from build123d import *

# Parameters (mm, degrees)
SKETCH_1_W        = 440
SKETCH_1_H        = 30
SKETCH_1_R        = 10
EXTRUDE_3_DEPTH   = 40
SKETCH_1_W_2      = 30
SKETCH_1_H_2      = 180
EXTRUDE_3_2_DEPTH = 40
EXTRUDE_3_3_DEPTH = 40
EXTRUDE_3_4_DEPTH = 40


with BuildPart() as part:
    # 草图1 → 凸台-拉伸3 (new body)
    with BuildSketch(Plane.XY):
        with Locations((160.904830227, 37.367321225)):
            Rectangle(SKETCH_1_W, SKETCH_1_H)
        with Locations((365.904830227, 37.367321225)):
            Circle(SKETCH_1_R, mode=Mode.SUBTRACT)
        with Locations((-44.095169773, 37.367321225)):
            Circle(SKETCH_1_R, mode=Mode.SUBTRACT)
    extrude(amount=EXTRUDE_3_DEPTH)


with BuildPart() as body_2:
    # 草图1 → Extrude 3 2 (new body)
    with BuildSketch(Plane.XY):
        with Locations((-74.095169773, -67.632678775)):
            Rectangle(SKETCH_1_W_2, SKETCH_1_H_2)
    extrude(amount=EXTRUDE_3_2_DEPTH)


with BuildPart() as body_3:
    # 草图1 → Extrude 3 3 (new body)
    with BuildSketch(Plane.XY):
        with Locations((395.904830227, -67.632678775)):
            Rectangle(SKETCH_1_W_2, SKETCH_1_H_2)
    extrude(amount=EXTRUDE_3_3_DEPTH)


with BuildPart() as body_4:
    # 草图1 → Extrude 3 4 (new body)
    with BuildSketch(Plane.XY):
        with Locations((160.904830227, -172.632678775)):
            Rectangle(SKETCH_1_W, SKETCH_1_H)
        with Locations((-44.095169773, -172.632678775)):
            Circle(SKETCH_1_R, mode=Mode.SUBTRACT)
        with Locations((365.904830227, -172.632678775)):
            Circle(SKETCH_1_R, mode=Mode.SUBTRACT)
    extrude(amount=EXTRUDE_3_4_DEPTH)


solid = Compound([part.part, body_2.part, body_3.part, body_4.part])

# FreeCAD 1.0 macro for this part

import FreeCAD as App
import Part
import Sketcher
from FreeCAD import Vector

doc = App.newDocument("Part")
params = doc.addObject("Spreadsheet::Sheet", "Params")
for row, (alias, value) in enumerate([
    ("sketch1_diameter", "20 mm"),
    ("sketch1_width", "440 mm"),
    ("sketch1_height", "30 mm"),
    ("pad1_length", "40 mm"),
    ("sketch2_width", "30 mm"),
    ("sketch2_height", "180 mm"),
    ("pad2_length", "40 mm"),
    ("sketch3_width", "30 mm"),
    ("sketch3_height", "180 mm"),
    ("pad3_length", "40 mm"),
    ("sketch4_diameter", "20 mm"),
    ("sketch4_width", "440 mm"),
    ("sketch4_height", "30 mm"),
    ("pad4_length", "40 mm"),
], start=1):
    params.set(f"A{row}", alias)
    params.set(f"B{row}", "=" + value)
    params.setAlias(f"B{row}", alias)

body = doc.addObject("PartDesign::Body", "Body")

sketch1 = body.newObject("Sketcher::SketchObject", "Sketch")
sketch1.AttachmentSupport = (doc.getObject("XY_Plane"), [""])
sketch1.MapMode = "FlatFace"
sketch1.addGeometry([
    Part.LineSegment(Vector(-59.09517, 52.367321, 0), Vector(-59.09517, 22.367321, 0)),
    Part.LineSegment(Vector(-59.09517, 22.367321, 0), Vector(380.90483, 22.367321, 0)),
    Part.LineSegment(Vector(380.90483, 22.367321, 0), Vector(380.90483, 52.367321, 0)),
    Part.LineSegment(Vector(380.90483, 52.367321, 0), Vector(-59.09517, 52.367321, 0)),
    Part.Circle(Vector(-44.09517, 37.367321, 0), Vector(0, 0, 1), 10),
    Part.Circle(Vector(365.90483, 37.367321, 0), Vector(0, 0, 1), 10),
], False)
sketch1.addConstraint([
    Sketcher.Constraint("Coincident", 0, 2, 1, 1),
    Sketcher.Constraint("Coincident", 1, 2, 2, 1),
    Sketcher.Constraint("Coincident", 2, 2, 3, 1),
    Sketcher.Constraint("Coincident", 3, 2, 0, 1),
    Sketcher.Constraint("Vertical", 0),
    Sketcher.Constraint("Horizontal", 1),
    Sketcher.Constraint("Vertical", 2),
    Sketcher.Constraint("Horizontal", 3),
    Sketcher.Constraint("Equal", 4, 5),
    Sketcher.Constraint("Horizontal", 4, 3, 5, 3),
    Sketcher.Constraint("Diameter", 4, 20.0),
    Sketcher.Constraint("DistanceX", 1, 1, 1, 2, 440.0),
    Sketcher.Constraint("DistanceY", 0, 2, 0, 1, 30.0),
    Sketcher.Constraint("DistanceX", 4, 3, 5, 3, 410.0),
    Sketcher.Constraint("DistanceX", 0, 2, 4, 3, 15.0),
    Sketcher.Constraint("DistanceY", 0, 2, 4, 3, 15.0),
    Sketcher.Constraint("DistanceX", 4, 3, -1, 1, 44.09517),
    Sketcher.Constraint("DistanceY", -1, 1, 4, 3, 37.367321),
])
sketch1.setExpression("Constraints[10]", "Params.sketch1_diameter")
sketch1.setExpression("Constraints[11]", "Params.sketch1_width")
sketch1.setExpression("Constraints[12]", "Params.sketch1_height")
pad1 = body.newObject("PartDesign::Pad", "Pad")
pad1.Profile = sketch1
pad1.setExpression("Length", "Params.pad1_length")
body2 = doc.addObject("PartDesign::Body", "Body001")

sketch2 = body2.newObject("Sketcher::SketchObject", "Sketch001")
sketch2.AttachmentSupport = (doc.getObject("XY_Plane001"), [""])
sketch2.MapMode = "FlatFace"
sketch2.addGeometry([
    Part.LineSegment(Vector(-89.09517, 22.367321, 0), Vector(-89.09517, -157.632679, 0)),
    Part.LineSegment(Vector(-89.09517, -157.632679, 0), Vector(-59.09517, -157.632679, 0)),
    Part.LineSegment(Vector(-59.09517, -157.632679, 0), Vector(-59.09517, 22.367321, 0)),
    Part.LineSegment(Vector(-59.09517, 22.367321, 0), Vector(-89.09517, 22.367321, 0)),
], False)
sketch2.addConstraint([
    Sketcher.Constraint("Coincident", 0, 2, 1, 1),
    Sketcher.Constraint("Coincident", 1, 2, 2, 1),
    Sketcher.Constraint("Coincident", 2, 2, 3, 1),
    Sketcher.Constraint("Coincident", 3, 2, 0, 1),
    Sketcher.Constraint("Vertical", 0),
    Sketcher.Constraint("Horizontal", 1),
    Sketcher.Constraint("Vertical", 2),
    Sketcher.Constraint("Horizontal", 3),
    Sketcher.Constraint("DistanceX", 1, 1, 1, 2, 30.0),
    Sketcher.Constraint("DistanceY", 0, 2, 0, 1, 180.0),
    Sketcher.Constraint("DistanceX", 0, 2, -1, 1, 89.09517),
    Sketcher.Constraint("DistanceY", 0, 2, -1, 1, 157.632679),
])
sketch2.setExpression("Constraints[8]", "Params.sketch2_width")
sketch2.setExpression("Constraints[9]", "Params.sketch2_height")
pad2 = body2.newObject("PartDesign::Pad", "Pad001")
pad2.Profile = sketch2
pad2.setExpression("Length", "Params.pad2_length")
body3 = doc.addObject("PartDesign::Body", "Body002")

sketch3 = body3.newObject("Sketcher::SketchObject", "Sketch002")
sketch3.AttachmentSupport = (doc.getObject("XY_Plane002"), [""])
sketch3.MapMode = "FlatFace"
sketch3.addGeometry([
    Part.LineSegment(Vector(380.90483, 22.367321, 0), Vector(380.90483, -157.632679, 0)),
    Part.LineSegment(Vector(380.90483, -157.632679, 0), Vector(410.90483, -157.632679, 0)),
    Part.LineSegment(Vector(410.90483, -157.632679, 0), Vector(410.90483, 22.367321, 0)),
    Part.LineSegment(Vector(410.90483, 22.367321, 0), Vector(380.90483, 22.367321, 0)),
], False)
sketch3.addConstraint([
    Sketcher.Constraint("Coincident", 0, 2, 1, 1),
    Sketcher.Constraint("Coincident", 1, 2, 2, 1),
    Sketcher.Constraint("Coincident", 2, 2, 3, 1),
    Sketcher.Constraint("Coincident", 3, 2, 0, 1),
    Sketcher.Constraint("Vertical", 0),
    Sketcher.Constraint("Horizontal", 1),
    Sketcher.Constraint("Vertical", 2),
    Sketcher.Constraint("Horizontal", 3),
    Sketcher.Constraint("DistanceX", 1, 1, 1, 2, 30.0),
    Sketcher.Constraint("DistanceY", 0, 2, 0, 1, 180.0),
    Sketcher.Constraint("DistanceX", -1, 1, 0, 2, 380.90483),
    Sketcher.Constraint("DistanceY", 0, 2, -1, 1, 157.632679),
])
sketch3.setExpression("Constraints[8]", "Params.sketch3_width")
sketch3.setExpression("Constraints[9]", "Params.sketch3_height")
pad3 = body3.newObject("PartDesign::Pad", "Pad002")
pad3.Profile = sketch3
pad3.setExpression("Length", "Params.pad3_length")
body4 = doc.addObject("PartDesign::Body", "Body003")

sketch4 = body4.newObject("Sketcher::SketchObject", "Sketch003")
sketch4.AttachmentSupport = (doc.getObject("XY_Plane003"), [""])
sketch4.MapMode = "FlatFace"
sketch4.addGeometry([
    Part.LineSegment(Vector(-59.09517, -157.632679, 0), Vector(-59.09517, -187.632679, 0)),
    Part.LineSegment(Vector(-59.09517, -187.632679, 0), Vector(380.90483, -187.632679, 0)),
    Part.LineSegment(Vector(380.90483, -187.632679, 0), Vector(380.90483, -157.632679, 0)),
    Part.LineSegment(Vector(380.90483, -157.632679, 0), Vector(-59.09517, -157.632679, 0)),
    Part.Circle(Vector(-44.09517, -172.632679, 0), Vector(0, 0, 1), 10),
    Part.Circle(Vector(365.90483, -172.632679, 0), Vector(0, 0, 1), 10),
], False)
sketch4.addConstraint([
    Sketcher.Constraint("Coincident", 0, 2, 1, 1),
    Sketcher.Constraint("Coincident", 1, 2, 2, 1),
    Sketcher.Constraint("Coincident", 2, 2, 3, 1),
    Sketcher.Constraint("Coincident", 3, 2, 0, 1),
    Sketcher.Constraint("Vertical", 0),
    Sketcher.Constraint("Horizontal", 1),
    Sketcher.Constraint("Vertical", 2),
    Sketcher.Constraint("Horizontal", 3),
    Sketcher.Constraint("Equal", 4, 5),
    Sketcher.Constraint("Horizontal", 4, 3, 5, 3),
    Sketcher.Constraint("Diameter", 4, 20.0),
    Sketcher.Constraint("DistanceX", 1, 1, 1, 2, 440.0),
    Sketcher.Constraint("DistanceY", 0, 2, 0, 1, 30.0),
    Sketcher.Constraint("DistanceX", 4, 3, 5, 3, 410.0),
    Sketcher.Constraint("DistanceX", 0, 2, 4, 3, 15.0),
    Sketcher.Constraint("DistanceY", 0, 2, 4, 3, 15.0),
    Sketcher.Constraint("DistanceX", 4, 3, -1, 1, 44.09517),
    Sketcher.Constraint("DistanceY", 4, 3, -1, 1, 172.632679),
])
sketch4.setExpression("Constraints[10]", "Params.sketch4_diameter")
sketch4.setExpression("Constraints[11]", "Params.sketch4_width")
sketch4.setExpression("Constraints[12]", "Params.sketch4_height")
pad4 = body4.newObject("PartDesign::Pad", "Pad003")
pad4.Profile = sketch4
pad4.setExpression("Length", "Params.pad4_length")

doc.recompute()
